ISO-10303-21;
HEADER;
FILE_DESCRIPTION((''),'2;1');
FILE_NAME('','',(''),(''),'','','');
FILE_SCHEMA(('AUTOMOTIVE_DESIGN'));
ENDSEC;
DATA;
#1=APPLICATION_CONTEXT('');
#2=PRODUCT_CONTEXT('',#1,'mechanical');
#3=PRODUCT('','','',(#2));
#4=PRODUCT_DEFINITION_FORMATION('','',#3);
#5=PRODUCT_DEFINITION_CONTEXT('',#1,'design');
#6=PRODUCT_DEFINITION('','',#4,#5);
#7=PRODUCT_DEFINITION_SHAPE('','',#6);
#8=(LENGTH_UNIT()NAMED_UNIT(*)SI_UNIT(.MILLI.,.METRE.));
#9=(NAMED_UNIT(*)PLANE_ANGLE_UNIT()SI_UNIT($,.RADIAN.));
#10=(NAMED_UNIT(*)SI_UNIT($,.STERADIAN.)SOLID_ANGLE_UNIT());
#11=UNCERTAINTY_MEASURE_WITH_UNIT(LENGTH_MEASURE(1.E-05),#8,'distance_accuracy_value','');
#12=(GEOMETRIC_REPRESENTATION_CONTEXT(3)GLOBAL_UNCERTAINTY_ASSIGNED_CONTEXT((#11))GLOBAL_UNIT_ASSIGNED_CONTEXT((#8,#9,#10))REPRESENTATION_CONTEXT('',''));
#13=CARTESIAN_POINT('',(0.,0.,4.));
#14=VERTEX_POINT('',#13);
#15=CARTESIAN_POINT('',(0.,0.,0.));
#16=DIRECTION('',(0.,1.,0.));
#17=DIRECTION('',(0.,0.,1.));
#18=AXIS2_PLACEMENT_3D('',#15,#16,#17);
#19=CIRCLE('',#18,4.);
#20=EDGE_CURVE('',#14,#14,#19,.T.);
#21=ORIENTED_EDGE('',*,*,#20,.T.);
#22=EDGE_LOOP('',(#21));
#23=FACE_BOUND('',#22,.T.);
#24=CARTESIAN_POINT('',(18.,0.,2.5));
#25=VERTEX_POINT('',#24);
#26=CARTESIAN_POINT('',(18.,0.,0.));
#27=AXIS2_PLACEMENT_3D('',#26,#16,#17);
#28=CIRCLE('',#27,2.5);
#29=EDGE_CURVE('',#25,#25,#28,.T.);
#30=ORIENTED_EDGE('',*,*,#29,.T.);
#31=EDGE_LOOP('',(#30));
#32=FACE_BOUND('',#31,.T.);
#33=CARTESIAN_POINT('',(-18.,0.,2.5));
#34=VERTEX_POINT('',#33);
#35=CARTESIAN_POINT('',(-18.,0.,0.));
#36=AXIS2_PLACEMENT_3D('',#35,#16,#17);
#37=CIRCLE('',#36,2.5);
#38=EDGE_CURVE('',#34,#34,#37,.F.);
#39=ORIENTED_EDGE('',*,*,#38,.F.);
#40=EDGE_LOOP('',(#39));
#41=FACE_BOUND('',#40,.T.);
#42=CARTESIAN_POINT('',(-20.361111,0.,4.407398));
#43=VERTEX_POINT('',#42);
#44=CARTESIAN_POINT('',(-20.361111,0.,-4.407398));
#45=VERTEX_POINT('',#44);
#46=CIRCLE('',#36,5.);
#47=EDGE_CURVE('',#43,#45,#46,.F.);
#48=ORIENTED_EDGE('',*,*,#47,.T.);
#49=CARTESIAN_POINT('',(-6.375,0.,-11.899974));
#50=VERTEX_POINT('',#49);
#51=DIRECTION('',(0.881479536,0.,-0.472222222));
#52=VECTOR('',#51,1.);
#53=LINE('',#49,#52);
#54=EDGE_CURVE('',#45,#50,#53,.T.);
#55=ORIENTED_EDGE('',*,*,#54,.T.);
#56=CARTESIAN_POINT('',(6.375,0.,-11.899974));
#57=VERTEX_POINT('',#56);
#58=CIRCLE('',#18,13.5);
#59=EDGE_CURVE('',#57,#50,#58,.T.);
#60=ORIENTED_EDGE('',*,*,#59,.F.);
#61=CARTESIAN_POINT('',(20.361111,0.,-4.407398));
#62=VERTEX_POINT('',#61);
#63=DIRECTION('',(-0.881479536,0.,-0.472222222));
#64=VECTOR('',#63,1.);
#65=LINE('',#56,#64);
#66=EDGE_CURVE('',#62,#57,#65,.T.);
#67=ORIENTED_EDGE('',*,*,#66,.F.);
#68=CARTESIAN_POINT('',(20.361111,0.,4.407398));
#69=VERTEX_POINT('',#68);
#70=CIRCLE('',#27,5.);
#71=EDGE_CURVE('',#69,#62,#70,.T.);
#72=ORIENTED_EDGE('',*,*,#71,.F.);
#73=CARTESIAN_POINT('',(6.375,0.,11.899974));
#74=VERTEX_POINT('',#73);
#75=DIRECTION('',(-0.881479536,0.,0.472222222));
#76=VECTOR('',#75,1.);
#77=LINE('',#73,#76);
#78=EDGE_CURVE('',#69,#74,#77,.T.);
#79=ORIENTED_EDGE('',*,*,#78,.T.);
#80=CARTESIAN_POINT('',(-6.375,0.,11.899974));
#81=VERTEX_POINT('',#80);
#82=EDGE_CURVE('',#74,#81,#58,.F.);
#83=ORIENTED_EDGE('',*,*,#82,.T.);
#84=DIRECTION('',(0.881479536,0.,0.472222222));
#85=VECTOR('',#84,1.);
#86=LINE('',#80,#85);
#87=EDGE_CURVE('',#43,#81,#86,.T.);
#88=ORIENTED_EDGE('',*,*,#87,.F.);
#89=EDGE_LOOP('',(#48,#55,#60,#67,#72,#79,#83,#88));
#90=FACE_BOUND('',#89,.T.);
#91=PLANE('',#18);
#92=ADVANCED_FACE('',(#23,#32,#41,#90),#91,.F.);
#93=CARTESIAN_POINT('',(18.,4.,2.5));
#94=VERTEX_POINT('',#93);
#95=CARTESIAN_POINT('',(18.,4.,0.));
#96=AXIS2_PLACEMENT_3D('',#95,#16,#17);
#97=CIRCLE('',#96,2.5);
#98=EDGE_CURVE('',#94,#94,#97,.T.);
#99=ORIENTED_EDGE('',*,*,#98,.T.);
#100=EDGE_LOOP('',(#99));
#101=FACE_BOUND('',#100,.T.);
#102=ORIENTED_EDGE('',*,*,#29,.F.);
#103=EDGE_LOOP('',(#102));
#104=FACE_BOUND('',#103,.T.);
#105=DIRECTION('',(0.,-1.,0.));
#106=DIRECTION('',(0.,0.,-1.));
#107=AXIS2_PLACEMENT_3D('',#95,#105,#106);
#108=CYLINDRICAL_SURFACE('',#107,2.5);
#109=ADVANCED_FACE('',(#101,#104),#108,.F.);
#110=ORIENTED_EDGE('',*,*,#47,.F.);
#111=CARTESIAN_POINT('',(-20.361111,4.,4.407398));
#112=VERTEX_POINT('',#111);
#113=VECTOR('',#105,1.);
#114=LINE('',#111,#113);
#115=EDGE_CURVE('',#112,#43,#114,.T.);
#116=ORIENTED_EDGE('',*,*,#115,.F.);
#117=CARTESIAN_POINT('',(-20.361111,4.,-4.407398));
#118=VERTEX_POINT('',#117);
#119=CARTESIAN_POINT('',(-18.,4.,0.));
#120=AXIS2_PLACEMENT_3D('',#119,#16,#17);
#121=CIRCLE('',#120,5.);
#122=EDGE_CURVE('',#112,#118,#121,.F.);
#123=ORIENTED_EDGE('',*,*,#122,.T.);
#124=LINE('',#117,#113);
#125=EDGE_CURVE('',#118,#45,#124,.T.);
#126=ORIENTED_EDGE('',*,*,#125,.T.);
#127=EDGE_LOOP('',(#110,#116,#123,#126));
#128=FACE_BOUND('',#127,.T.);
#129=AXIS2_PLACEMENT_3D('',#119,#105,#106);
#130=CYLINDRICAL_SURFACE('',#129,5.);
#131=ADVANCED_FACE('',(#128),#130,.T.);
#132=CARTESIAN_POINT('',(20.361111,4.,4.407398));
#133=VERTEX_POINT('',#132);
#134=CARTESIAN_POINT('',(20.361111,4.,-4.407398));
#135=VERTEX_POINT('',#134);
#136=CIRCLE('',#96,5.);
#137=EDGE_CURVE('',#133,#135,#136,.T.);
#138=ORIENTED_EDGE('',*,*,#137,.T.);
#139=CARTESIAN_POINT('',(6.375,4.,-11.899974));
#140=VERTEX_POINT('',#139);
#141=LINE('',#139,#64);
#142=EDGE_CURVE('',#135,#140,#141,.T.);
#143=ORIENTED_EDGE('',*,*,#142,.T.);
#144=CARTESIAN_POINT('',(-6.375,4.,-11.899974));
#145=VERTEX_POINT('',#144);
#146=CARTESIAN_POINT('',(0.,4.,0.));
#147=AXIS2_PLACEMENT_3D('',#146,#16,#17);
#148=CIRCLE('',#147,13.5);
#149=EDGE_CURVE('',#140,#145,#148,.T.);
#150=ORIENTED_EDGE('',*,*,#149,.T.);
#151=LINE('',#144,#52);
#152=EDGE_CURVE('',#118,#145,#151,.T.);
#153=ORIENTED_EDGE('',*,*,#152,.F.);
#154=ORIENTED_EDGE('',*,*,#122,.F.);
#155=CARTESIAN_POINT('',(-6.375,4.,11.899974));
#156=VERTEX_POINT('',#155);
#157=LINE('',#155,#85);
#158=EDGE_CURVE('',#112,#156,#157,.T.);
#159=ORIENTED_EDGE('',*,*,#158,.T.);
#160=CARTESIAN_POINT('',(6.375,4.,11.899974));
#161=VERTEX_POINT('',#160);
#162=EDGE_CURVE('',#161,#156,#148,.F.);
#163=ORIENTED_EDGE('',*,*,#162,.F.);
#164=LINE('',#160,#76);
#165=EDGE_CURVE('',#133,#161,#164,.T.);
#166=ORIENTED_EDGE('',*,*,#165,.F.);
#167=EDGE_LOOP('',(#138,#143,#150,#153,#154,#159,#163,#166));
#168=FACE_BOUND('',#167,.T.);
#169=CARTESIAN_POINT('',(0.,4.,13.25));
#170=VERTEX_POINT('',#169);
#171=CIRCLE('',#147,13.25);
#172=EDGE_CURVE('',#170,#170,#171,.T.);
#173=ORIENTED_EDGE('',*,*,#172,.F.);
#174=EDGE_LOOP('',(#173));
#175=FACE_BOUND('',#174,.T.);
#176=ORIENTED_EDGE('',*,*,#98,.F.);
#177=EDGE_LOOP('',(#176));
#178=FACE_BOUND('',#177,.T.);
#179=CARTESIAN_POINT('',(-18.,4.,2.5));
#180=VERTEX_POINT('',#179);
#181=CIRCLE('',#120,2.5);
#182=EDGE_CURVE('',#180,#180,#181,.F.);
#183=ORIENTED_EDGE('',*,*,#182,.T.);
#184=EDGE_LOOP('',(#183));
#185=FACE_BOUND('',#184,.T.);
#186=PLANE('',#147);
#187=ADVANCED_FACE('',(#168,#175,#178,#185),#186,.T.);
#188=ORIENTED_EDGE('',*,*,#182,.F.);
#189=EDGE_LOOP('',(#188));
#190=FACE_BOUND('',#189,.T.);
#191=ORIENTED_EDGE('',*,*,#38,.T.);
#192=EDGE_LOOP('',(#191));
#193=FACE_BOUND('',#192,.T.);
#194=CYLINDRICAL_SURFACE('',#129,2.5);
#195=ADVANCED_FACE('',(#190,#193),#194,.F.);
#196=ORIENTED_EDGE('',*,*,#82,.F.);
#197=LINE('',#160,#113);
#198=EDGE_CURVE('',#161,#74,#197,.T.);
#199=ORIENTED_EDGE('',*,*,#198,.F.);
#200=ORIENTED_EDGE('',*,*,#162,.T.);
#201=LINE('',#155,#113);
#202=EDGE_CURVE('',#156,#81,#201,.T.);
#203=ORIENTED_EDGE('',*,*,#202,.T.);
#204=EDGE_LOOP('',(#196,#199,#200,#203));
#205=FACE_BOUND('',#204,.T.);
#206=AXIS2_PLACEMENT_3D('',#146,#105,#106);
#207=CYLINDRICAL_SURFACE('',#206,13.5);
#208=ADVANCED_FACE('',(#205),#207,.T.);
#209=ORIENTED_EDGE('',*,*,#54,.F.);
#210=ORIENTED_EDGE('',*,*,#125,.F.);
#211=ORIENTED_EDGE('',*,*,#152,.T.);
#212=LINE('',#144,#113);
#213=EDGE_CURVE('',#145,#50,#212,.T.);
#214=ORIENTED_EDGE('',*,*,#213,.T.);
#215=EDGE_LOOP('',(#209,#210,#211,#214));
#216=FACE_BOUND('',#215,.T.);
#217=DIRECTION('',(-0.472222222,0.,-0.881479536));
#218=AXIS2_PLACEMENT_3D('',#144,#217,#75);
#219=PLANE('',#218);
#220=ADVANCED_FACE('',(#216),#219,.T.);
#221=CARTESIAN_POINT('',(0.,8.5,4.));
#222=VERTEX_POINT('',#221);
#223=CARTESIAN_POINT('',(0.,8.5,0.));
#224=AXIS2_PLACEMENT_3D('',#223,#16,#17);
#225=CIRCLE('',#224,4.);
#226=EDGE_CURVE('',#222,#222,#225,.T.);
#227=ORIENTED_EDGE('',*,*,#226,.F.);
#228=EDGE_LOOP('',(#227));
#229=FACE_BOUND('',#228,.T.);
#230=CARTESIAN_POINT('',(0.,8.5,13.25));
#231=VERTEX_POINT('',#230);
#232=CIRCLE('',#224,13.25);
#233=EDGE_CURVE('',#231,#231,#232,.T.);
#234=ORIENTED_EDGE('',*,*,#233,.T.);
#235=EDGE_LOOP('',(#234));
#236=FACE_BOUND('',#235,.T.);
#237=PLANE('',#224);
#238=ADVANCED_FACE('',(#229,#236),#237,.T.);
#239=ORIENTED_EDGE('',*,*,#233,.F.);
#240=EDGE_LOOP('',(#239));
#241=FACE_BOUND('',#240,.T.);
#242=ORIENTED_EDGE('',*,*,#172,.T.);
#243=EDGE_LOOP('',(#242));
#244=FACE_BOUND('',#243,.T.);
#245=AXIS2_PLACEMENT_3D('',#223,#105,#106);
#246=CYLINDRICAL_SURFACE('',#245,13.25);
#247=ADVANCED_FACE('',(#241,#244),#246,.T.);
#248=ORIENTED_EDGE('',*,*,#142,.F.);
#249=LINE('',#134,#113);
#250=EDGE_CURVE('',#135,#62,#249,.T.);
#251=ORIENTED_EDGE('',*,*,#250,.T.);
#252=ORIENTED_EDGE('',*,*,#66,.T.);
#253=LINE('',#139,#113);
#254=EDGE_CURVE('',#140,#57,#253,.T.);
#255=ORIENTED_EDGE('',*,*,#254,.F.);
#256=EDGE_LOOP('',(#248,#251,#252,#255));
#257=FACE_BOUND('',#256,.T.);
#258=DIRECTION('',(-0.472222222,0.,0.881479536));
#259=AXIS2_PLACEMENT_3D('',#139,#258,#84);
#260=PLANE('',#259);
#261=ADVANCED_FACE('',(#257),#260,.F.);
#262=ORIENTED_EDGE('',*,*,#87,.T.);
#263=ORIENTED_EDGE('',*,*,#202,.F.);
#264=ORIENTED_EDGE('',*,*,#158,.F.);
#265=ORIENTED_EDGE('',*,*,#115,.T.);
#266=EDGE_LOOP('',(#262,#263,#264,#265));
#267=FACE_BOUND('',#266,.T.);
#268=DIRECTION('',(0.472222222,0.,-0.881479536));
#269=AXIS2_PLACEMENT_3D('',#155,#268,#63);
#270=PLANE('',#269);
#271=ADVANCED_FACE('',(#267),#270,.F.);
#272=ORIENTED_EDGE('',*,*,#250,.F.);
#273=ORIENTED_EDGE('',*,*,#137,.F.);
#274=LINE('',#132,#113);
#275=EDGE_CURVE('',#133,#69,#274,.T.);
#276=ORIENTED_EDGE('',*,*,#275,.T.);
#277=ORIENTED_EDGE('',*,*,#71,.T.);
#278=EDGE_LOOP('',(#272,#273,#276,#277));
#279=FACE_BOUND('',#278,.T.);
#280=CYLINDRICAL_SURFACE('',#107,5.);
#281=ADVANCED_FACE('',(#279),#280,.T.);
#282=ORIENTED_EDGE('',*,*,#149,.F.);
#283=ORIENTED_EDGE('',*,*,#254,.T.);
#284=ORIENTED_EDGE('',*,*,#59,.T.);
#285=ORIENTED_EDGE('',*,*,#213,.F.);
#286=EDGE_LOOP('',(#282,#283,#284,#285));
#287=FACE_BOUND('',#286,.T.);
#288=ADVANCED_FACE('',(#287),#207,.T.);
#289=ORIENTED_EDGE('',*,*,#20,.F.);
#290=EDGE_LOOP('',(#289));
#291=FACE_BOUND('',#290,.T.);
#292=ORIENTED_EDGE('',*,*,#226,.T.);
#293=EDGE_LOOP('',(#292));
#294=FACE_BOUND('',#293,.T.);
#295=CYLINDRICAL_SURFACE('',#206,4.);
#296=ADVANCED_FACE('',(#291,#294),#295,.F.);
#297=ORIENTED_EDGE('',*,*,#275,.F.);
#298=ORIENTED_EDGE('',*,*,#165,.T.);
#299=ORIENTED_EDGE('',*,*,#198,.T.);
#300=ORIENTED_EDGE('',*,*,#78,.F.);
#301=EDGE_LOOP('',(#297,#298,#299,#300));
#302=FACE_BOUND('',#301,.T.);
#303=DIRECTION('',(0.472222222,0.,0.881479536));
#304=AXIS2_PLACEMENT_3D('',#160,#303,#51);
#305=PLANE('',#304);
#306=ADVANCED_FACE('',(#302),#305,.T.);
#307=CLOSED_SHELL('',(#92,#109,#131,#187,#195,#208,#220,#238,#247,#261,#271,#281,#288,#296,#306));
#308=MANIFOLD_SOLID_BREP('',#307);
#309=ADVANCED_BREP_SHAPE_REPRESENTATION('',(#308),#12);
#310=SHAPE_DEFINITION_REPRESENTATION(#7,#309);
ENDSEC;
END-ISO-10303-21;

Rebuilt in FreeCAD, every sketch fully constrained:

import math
import FreeCAD as App
import Part
import Sketcher
from FreeCAD import Vector
Q = App.Units.Quantity

doc = App.newDocument("Part")
body = doc.addObject("PartDesign::Body", "Body")

sketch1 = body.newObject("Sketcher::SketchObject", "Sketch")
sketch1.AttachmentSupport = (doc.getObject("XZ_Plane"), [""])
sketch1.MapMode = "FlatFace"
sketch1.addGeometry(Part.LineSegment(Vector(6.375, 11.899974, 0), Vector(20.361111, 4.407398, 0)), False)
sketch1.addGeometry(Part.ArcOfCircle(Part.Circle(Vector(18, 0, 0), Vector(0, 0, 1), 5), math.radians(-61.821357), math.radians(61.821357)), False)
sketch1.addGeometry(Part.LineSegment(Vector(20.361111, -4.407398, 0), Vector(6.375, -11.899974, 0)), False)
sketch1.addGeometry(Part.ArcOfCircle(Part.Circle(Vector(0, 0, 0), Vector(0, 0, 1), 13.5), math.radians(-118.178643), math.radians(-61.821357)), False)
sketch1.addGeometry(Part.LineSegment(Vector(-6.375, -11.899974, 0), Vector(-20.361111, -4.407398, 0)), False)
sketch1.addGeometry(Part.ArcOfCircle(Part.Circle(Vector(-18, 0, 0), Vector(0, 0, 1), 5), math.radians(118.178643), math.radians(241.821357)), False)
sketch1.addGeometry(Part.LineSegment(Vector(-20.361111, 4.407398, 0), Vector(-6.375, 11.899974, 0)), False)
sketch1.addGeometry(Part.ArcOfCircle(Part.Circle(Vector(0, 0, 0), Vector(0, 0, 1), 13.5), math.radians(61.821357), math.radians(118.178643)), False)
sketch1.addGeometry(Part.Circle(Vector(18, 0, 0), Vector(0, 0, 1), 2.5), False)
sketch1.addGeometry(Part.Circle(Vector(0, 0, 0), Vector(0, 0, 1), 4), False)
sketch1.addGeometry(Part.Circle(Vector(-18, 0, 0), Vector(0, 0, 1), 2.5), False)
sketch1.addConstraint(Sketcher.Constraint("Tangent", 0, 2, 1, 2))
sketch1.addConstraint(Sketcher.Constraint("Tangent", 1, 1, 2, 1))
sketch1.addConstraint(Sketcher.Constraint("Tangent", 2, 2, 3, 2))
sketch1.addConstraint(Sketcher.Constraint("Tangent", 3, 1, 4, 1))
sketch1.addConstraint(Sketcher.Constraint("Tangent", 4, 2, 5, 2))
sketch1.addConstraint(Sketcher.Constraint("Tangent", 5, 1, 6, 1))
sketch1.addConstraint(Sketcher.Constraint("Tangent", 6, 2, 7, 2))
sketch1.addConstraint(Sketcher.Constraint("Tangent", 7, 1, 0, 1))
sketch1.addConstraint(Sketcher.Constraint("Coincident", 3, 3, -1, 1))
sketch1.addConstraint(Sketcher.Constraint("Coincident", 7, 3, -1, 1))
sketch1.addConstraint(Sketcher.Constraint("Coincident", 9, 3, -1, 1))
sketch1.addConstraint(Sketcher.Constraint("Coincident", 8, 3, 1, 3))
sketch1.addConstraint(Sketcher.Constraint("Coincident", 10, 3, 5, 3))
sketch1.addConstraint(Sketcher.Constraint("Equal", 1, 5))
sketch1.addConstraint(Sketcher.Constraint("Equal", 3, 7))
sketch1.addConstraint(Sketcher.Constraint("Equal", 8, 10))
sketch1.addConstraint(Sketcher.Constraint("Symmetric", 1, 3, 5, 3, -1, 1))
sketch1.addConstraint(Sketcher.Constraint("PointOnObject", 1, 3, -1))
sketch1.addConstraint(Sketcher.Constraint("Diameter", 8, Q("5 mm")))
sketch1.addConstraint(Sketcher.Constraint("Diameter", 9, Q("8 mm")))
sketch1.addConstraint(Sketcher.Constraint("Radius", 1, Q("5 mm")))
sketch1.addConstraint(Sketcher.Constraint("Radius", 3, Q("13.5 mm")))
sketch1.addConstraint(Sketcher.Constraint("DistanceX", -1, 1, 1, 3, Q("18 mm")))
pad1 = body.newObject("PartDesign::Pad", "Pad")
pad1.Profile = sketch1
pad1.Length = 4
pad1.Reversed = True

sketch2 = body.newObject("Sketcher::SketchObject", "Sketch001")
sketch2.AttachmentSupport = (doc.getObject("XZ_Plane"), [""])
sketch2.MapMode = "FlatFace"
sketch2.AttachmentOffset = App.Placement(Vector(0, 0, -4), App.Rotation())
sketch2.addGeometry(Part.Circle(Vector(0, 0, 0), Vector(0, 0, 1), 13.25), False)
sketch2.addGeometry(Part.Circle(Vector(0, 0, 0), Vector(0, 0, 1), 4), False)
sketch2.addConstraint(Sketcher.Constraint("Coincident", 0, 3, -1, 1))
sketch2.addConstraint(Sketcher.Constraint("Coincident", 1, 3, -1, 1))
sketch2.addConstraint(Sketcher.Constraint("Diameter", 1, Q("8 mm")))
sketch2.addConstraint(Sketcher.Constraint("Diameter", 0, Q("26.5 mm")))
pad2 = body.newObject("PartDesign::Pad", "Pad001")
pad2.Profile = sketch2
pad2.Length = 4.5
pad2.Reversed = True

doc.recompute()
